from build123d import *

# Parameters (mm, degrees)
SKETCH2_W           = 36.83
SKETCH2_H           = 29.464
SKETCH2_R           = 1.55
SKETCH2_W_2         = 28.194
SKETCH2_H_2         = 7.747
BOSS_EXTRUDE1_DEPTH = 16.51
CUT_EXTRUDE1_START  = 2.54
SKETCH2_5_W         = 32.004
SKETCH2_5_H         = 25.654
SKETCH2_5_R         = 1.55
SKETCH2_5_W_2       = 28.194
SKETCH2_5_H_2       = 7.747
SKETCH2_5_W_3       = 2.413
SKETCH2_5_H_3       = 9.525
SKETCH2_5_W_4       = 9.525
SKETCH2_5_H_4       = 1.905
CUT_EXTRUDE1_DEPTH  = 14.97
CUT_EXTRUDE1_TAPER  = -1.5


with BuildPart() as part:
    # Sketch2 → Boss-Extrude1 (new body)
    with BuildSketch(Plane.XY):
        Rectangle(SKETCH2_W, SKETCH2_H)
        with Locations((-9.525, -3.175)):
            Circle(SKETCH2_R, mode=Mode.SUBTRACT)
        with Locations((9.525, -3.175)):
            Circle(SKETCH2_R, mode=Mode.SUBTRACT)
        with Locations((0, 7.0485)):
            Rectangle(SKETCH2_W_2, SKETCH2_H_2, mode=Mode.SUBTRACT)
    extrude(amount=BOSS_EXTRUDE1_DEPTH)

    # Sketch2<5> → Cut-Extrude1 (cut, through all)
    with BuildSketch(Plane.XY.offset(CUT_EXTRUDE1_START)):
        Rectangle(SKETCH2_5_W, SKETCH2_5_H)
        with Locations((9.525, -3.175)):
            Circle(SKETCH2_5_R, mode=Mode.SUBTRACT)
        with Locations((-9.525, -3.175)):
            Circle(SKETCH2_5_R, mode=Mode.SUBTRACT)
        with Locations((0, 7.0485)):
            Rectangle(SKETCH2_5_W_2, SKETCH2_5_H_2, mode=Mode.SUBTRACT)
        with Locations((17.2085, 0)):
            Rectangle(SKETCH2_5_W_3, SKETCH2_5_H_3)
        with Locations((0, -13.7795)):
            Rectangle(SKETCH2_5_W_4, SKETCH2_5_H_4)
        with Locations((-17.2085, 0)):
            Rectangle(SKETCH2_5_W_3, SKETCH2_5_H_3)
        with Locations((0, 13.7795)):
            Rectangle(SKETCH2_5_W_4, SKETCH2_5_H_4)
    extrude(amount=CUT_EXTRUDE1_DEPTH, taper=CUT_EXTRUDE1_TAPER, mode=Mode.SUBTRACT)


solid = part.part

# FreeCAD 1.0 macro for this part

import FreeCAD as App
import Part
import Sketcher
Q = App.Units.Quantity

doc = App.newDocument("Part")
body = doc.addObject("PartDesign::Body", "Body")

# Sketch on XY plane
sketch1 = doc.addObject("Sketcher::SketchObject", "Sketch")
body.addObject(sketch1)
sketch1.AttachmentSupport = (doc.XY_Plane, [""])
sketch1.MapMode = "FlatFace"
sketch1.addGeometry(Part.LineSegment(App.Vector(-18.4, 14.7, 0), App.Vector(-18.4, -14.7, 0)), False)
sketch1.addGeometry(Part.LineSegment(App.Vector(-18.4, -14.7, 0), App.Vector(18.4, -14.7, 0)), False)
sketch1.addGeometry(Part.LineSegment(App.Vector(18.4, -14.7, 0), App.Vector(18.4, 14.7, 0)), False)
sketch1.addGeometry(Part.LineSegment(App.Vector(18.4, 14.7, 0), App.Vector(-18.4, 14.7, 0)), False)
sketch1.addGeometry(Part.Circle(App.Vector(-9.5, -3.2, 0), App.Vector(0, 0, 1), 1.6), False)
sketch1.addGeometry(Part.Circle(App.Vector(9.5, -3.2, 0), App.Vector(0, 0, 1), 1.6), False)
sketch1.addGeometry(Part.LineSegment(App.Vector(14.1, 3.2, 0), App.Vector(-14.1, 3.2, 0)), False)
sketch1.addGeometry(Part.LineSegment(App.Vector(-14.1, 3.2, 0), App.Vector(-14.1, 10.9, 0)), False)
sketch1.addGeometry(Part.LineSegment(App.Vector(-14.1, 10.9, 0), App.Vector(14.1, 10.9, 0)), False)
sketch1.addGeometry(Part.LineSegment(App.Vector(14.1, 10.9, 0), App.Vector(14.1, 3.2, 0)), False)
sketch1.addConstraint(Sketcher.Constraint("Coincident", 0, 2, 1, 1))
sketch1.addConstraint(Sketcher.Constraint("Coincident", 1, 2, 2, 1))
sketch1.addConstraint(Sketcher.Constraint("Coincident", 2, 2, 3, 1))
sketch1.addConstraint(Sketcher.Constraint("Coincident", 3, 2, 0, 1))
sketch1.addConstraint(Sketcher.Constraint("Coincident", 6, 2, 7, 1))
sketch1.addConstraint(Sketcher.Constraint("Coincident", 7, 2, 8, 1))
sketch1.addConstraint(Sketcher.Constraint("Coincident", 8, 2, 9, 1))
sketch1.addConstraint(Sketcher.Constraint("Coincident", 9, 2, 6, 1))
sketch1.addConstraint(Sketcher.Constraint("Vertical", 0))
sketch1.addConstraint(Sketcher.Constraint("Horizontal", 1))
sketch1.addConstraint(Sketcher.Constraint("Vertical", 2))
sketch1.addConstraint(Sketcher.Constraint("Horizontal", 3))
sketch1.addConstraint(Sketcher.Constraint("Horizontal", 6))
sketch1.addConstraint(Sketcher.Constraint("Vertical", 7))
sketch1.addConstraint(Sketcher.Constraint("Horizontal", 8))
sketch1.addConstraint(Sketcher.Constraint("Vertical", 9))
sketch1.addConstraint(Sketcher.Constraint("Equal", 4, 5))
sketch1.addConstraint(Sketcher.Constraint("Symmetric", 0, 2, 2, 2, -1, 1))
sketch1.addConstraint(Sketcher.Constraint("Symmetric", 4, 3, 5, 3, -2))
sketch1.addConstraint(Sketcher.Constraint("DistanceX", 1, 1, 1, 2, Q("1.45 in")))
sketch1.addConstraint(Sketcher.Constraint("DistanceX", 6, 2, 6, 1, Q("1.11 in")))
sketch1.addConstraint(Sketcher.Constraint("DistanceY", 0, 2, 0, 1, Q("1.16 in")))
sketch1.addConstraint(Sketcher.Constraint("DistanceX", 0, 2, 5, 3, Q("1.1 in")))
sketch1.addConstraint(Sketcher.Constraint("Diameter", 4, Q("3.1 mm")))
sketch1.addConstraint(Sketcher.Constraint("DistanceY", 7, 1, 7, 2, Q("0.305 in")))
sketch1.addConstraint(Sketcher.Constraint("DistanceY", -1, 1, 7, 2, Q("0.43 in")))
sketch1.addConstraint(Sketcher.Constraint("DistanceX", 6, 2, 4, 3, Q("0.18 in")))
sketch1.addConstraint(Sketcher.Constraint("DistanceY", 4, 3, 6, 2, Q("0.25 in")))
pad1 = doc.addObject("PartDesign::Pad", "Pad")
body.addObject(pad1)
pad1.Profile = sketch1
pad1.Length = Q("0.65 in")

# Sketch on XY plane
sketch2 = doc.addObject("Sketcher::SketchObject", "Sketch001")
body.addObject(sketch2)
sketch2.AttachmentSupport = (doc.XY_Plane, [""])
sketch2.MapMode = "FlatFace"
sketch2.AttachmentOffset = App.Placement(App.Vector(0, 0, 0.1 * 25.4), App.Rotation())
sketch2.addGeometry(Part.LineSegment(App.Vector(-16, -4.8, 0), App.Vector(-16, -12.8, 0)), False)
sketch2.addGeometry(Part.LineSegment(App.Vector(-16, -12.8, 0), App.Vector(-4.8, -12.8, 0)), False)
sketch2.addGeometry(Part.LineSegment(App.Vector(-4.8, -12.8, 0), App.Vector(-4.8, -14.7, 0)), False)
sketch2.addGeometry(Part.LineSegment(App.Vector(-4.8, -14.7, 0), App.Vector(4.8, -14.7, 0)), False)
sketch2.addGeometry(Part.LineSegment(App.Vector(4.8, -14.7, 0), App.Vector(4.8, -12.8, 0)), False)
sketch2.addGeometry(Part.LineSegment(App.Vector(4.8, -12.8, 0), App.Vector(16, -12.8, 0)), False)
sketch2.addGeometry(Part.LineSegment(App.Vector(16, -12.8, 0), App.Vector(16, -4.8, 0)), False)
sketch2.addGeometry(Part.LineSegment(App.Vector(16, -4.8, 0), App.Vector(18.4, -4.8, 0)), False)
sketch2.addGeometry(Part.LineSegment(App.Vector(18.4, -4.8, 0), App.Vector(18.4, 4.8, 0)), False)
sketch2.addGeometry(Part.LineSegment(App.Vector(18.4, 4.8, 0), App.Vector(16, 4.8, 0)), False)
sketch2.addGeometry(Part.LineSegment(App.Vector(16, 4.8, 0), App.Vector(16, 12.8, 0)), False)
sketch2.addGeometry(Part.LineSegment(App.Vector(16, 12.8, 0), App.Vector(4.8, 12.8, 0)), False)
sketch2.addGeometry(Part.LineSegment(App.Vector(4.8, 12.8, 0), App.Vector(4.8, 14.7, 0)), False)
sketch2.addGeometry(Part.LineSegment(App.Vector(4.8, 14.7, 0), App.Vector(-4.8, 14.7, 0)), False)
sketch2.addGeometry(Part.LineSegment(App.Vector(-4.8, 14.7, 0), App.Vector(-4.8, 12.8, 0)), False)
sketch2.addGeometry(Part.LineSegment(App.Vector(-4.8, 12.8, 0), App.Vector(-16, 12.8, 0)), False)
sketch2.addGeometry(Part.LineSegment(App.Vector(-16, 12.8, 0), App.Vector(-16, 4.8, 0)), False)
sketch2.addGeometry(Part.LineSegment(App.Vector(-16, 4.8, 0), App.Vector(-18.4, 4.8, 0)), False)
sketch2.addGeometry(Part.LineSegment(App.Vector(-18.4, 4.8, 0), App.Vector(-18.4, -4.8, 0)), False)
sketch2.addGeometry(Part.LineSegment(App.Vector(-18.4, -4.8, 0), App.Vector(-16, -4.8, 0)), False)
sketch2.addGeometry(Part.Circle(App.Vector(-9.5, -3.2, 0), App.Vector(0, 0, 1), 1.6), False)
sketch2.addGeometry(Part.Circle(App.Vector(9.5, -3.2, 0), App.Vector(0, 0, 1), 1.6), False)
sketch2.addGeometry(Part.LineSegment(App.Vector(14.1, 3.2, 0), App.Vector(-14.1, 3.2, 0)), False)
sketch2.addGeometry(Part.LineSegment(App.Vector(-14.1, 3.2, 0), App.Vector(-14.1, 10.9, 0)), False)
sketch2.addGeometry(Part.LineSegment(App.Vector(-14.1, 10.9, 0), App.Vector(14.1, 10.9, 0)), False)
sketch2.addGeometry(Part.LineSegment(App.Vector(14.1, 10.9, 0), App.Vector(14.1, 3.2, 0)), False)
sketch2.addConstraint(Sketcher.Constraint("Coincident", 0, 2, 1, 1))
sketch2.addConstraint(Sketcher.Constraint("Coincident", 1, 2, 2, 1))
sketch2.addConstraint(Sketcher.Constraint("Coincident", 2, 2, 3, 1))
sketch2.addConstraint(Sketcher.Constraint("Coincident", 3, 2, 4, 1))
sketch2.addConstraint(Sketcher.Constraint("Coincident", 4, 2, 5, 1))
sketch2.addConstraint(Sketcher.Constraint("Coincident", 5, 2, 6, 1))
sketch2.addConstraint(Sketcher.Constraint("Coincident", 6, 2, 7, 1))
sketch2.addConstraint(Sketcher.Constraint("Coincident", 7, 2, 8, 1))
sketch2.addConstraint(Sketcher.Constraint("Coincident", 8, 2, 9, 1))
sketch2.addConstraint(Sketcher.Constraint("Coincident", 9, 2, 10, 1))
sketch2.addConstraint(Sketcher.Constraint("Coincident", 10, 2, 11, 1))
sketch2.addConstraint(Sketcher.Constraint("Coincident", 11, 2, 12, 1))
sketch2.addConstraint(Sketcher.Constraint("Coincident", 12, 2, 13, 1))
sketch2.addConstraint(Sketcher.Constraint("Coincident", 13, 2, 14, 1))
sketch2.addConstraint(Sketcher.Constraint("Coincident", 14, 2, 15, 1))
sketch2.addConstraint(Sketcher.Constraint("Coincident", 15, 2, 16, 1))
sketch2.addConstraint(Sketcher.Constraint("Coincident", 16, 2, 17, 1))
sketch2.addConstraint(Sketcher.Constraint("Coincident", 17, 2, 18, 1))
sketch2.addConstraint(Sketcher.Constraint("Coincident", 18, 2, 19, 1))
sketch2.addConstraint(Sketcher.Constraint("Coincident", 19, 2, 0, 1))
sketch2.addConstraint(Sketcher.Constraint("Coincident", 22, 2, 23, 1))
sketch2.addConstraint(Sketcher.Constraint("Coincident", 23, 2, 24, 1))
sketch2.addConstraint(Sketcher.Constraint("Coincident", 24, 2, 25, 1))
sketch2.addConstraint(Sketcher.Constraint("Coincident", 25, 2, 22, 1))
sketch2.addConstraint(Sketcher.Constraint("Vertical", 0))
sketch2.addConstraint(Sketcher.Constraint("Horizontal", 1))
sketch2.addConstraint(Sketcher.Constraint("Vertical", 2))
sketch2.addConstraint(Sketcher.Constraint("Horizontal", 3))
sketch2.addConstraint(Sketcher.Constraint("Vertical", 4))
sketch2.addConstraint(Sketcher.Constraint("Horizontal", 5))
sketch2.addConstraint(Sketcher.Constraint("Vertical", 6))
sketch2.addConstraint(Sketcher.Constraint("Horizontal", 7))
sketch2.addConstraint(Sketcher.Constraint("Vertical", 8))
sketch2.addConstraint(Sketcher.Constraint("Horizontal", 9))
sketch2.addConstraint(Sketcher.Constraint("Vertical", 10))
sketch2.addConstraint(Sketcher.Constraint("Horizontal", 11))
sketch2.addConstraint(Sketcher.Constraint("Vertical", 12))
sketch2.addConstraint(Sketcher.Constraint("Horizontal", 13))
sketch2.addConstraint(Sketcher.Constraint("Vertical", 14))
sketch2.addConstraint(Sketcher.Constraint("Horizontal", 15))
sketch2.addConstraint(Sketcher.Constraint("Vertical", 16))
sketch2.addConstraint(Sketcher.Constraint("Horizontal", 17))
sketch2.addConstraint(Sketcher.Constraint("Vertical", 18))
sketch2.addConstraint(Sketcher.Constraint("Horizontal", 19))
sketch2.addConstraint(Sketcher.Constraint("Horizontal", 22))
sketch2.addConstraint(Sketcher.Constraint("Vertical", 23))
sketch2.addConstraint(Sketcher.Constraint("Horizontal", 24))
sketch2.addConstraint(Sketcher.Constraint("Vertical", 25))
sketch2.addConstraint(Sketcher.Constraint("Equal", 20, 21))
sketch2.addConstraint(Sketcher.Constraint("Symmetric", 0, 2, 10, 2, -1, 1))
sketch2.addConstraint(Sketcher.Constraint("Symmetric", 2, 2, 12, 2, -1, 1))
sketch2.addConstraint(Sketcher.Constraint("Symmetric", 4, 2, 14, 2, -1, 1))
sketch2.addConstraint(Sketcher.Constraint("Symmetric", 6, 2, 16, 2, -1, 1))
sketch2.addConstraint(Sketcher.Constraint("Symmetric", 8, 2, 18, 2, -1, 1))
sketch2.addConstraint(Sketcher.Constraint("Symmetric", 20, 3, 21, 3, -2))
sketch2.addConstraint(Sketcher.Constraint("Symmetric", 1, 2, 4, 2, -2))
sketch2.addConstraint(Sketcher.Constraint("Symmetric", 9, 2, 16, 2, -2))
sketch2.addConstraint(Sketcher.Constraint("Equal", 13, 8))
sketch2.addConstraint(Sketcher.Constraint("DistanceX", 22, 2, 22, 1, Q("1.11 in")))
sketch2.addConstraint(Sketcher.Constraint("Diameter", 20, Q("3.1 mm")))
sketch2.addConstraint(Sketcher.Constraint("DistanceX", 3, 1, 3, 2, Q("0.375 in")))
sketch2.addConstraint(Sketcher.Constraint("DistanceX", 7, 1, 7, 2, Q("0.095 in")))
sketch2.addConstraint(Sketcher.Constraint("DistanceY", 2, 2, 2, 1, Q("0.075 in")))
sketch2.addConstraint(Sketcher.Constraint("DistanceY", 23, 1, 23, 2, Q("0.305 in")))
sketch2.addConstraint(Sketcher.Constraint("DistanceX", 0, 2, -1, 1, Q("0.63 in")))
sketch2.addConstraint(Sketcher.Constraint("DistanceY", 2, 2, -1, 1, Q("0.58 in")))
sketch2.addConstraint(Sketcher.Constraint("DistanceY", -1, 1, 23, 2, Q("0.43 in")))
sketch2.addConstraint(Sketcher.Constraint("DistanceX", 20, 3, 21, 3, Q("0.75 in")))
sketch2.addConstraint(Sketcher.Constraint("DistanceY", 0, 2, 20, 3, Q("0.38 in")))
sketch2.addConstraint(Sketcher.Constraint("DistanceX", 17, 2, 22, 2, Q("0.17 in")))
pocket1 = doc.addObject("PartDesign::Pocket", "Pocket")
body.addObject(pocket1)
pocket1.Profile = sketch2
pocket1.Length = 14.97
pocket1.Reversed = True
pocket1.TaperAngle = 1.5

doc.recompute()
